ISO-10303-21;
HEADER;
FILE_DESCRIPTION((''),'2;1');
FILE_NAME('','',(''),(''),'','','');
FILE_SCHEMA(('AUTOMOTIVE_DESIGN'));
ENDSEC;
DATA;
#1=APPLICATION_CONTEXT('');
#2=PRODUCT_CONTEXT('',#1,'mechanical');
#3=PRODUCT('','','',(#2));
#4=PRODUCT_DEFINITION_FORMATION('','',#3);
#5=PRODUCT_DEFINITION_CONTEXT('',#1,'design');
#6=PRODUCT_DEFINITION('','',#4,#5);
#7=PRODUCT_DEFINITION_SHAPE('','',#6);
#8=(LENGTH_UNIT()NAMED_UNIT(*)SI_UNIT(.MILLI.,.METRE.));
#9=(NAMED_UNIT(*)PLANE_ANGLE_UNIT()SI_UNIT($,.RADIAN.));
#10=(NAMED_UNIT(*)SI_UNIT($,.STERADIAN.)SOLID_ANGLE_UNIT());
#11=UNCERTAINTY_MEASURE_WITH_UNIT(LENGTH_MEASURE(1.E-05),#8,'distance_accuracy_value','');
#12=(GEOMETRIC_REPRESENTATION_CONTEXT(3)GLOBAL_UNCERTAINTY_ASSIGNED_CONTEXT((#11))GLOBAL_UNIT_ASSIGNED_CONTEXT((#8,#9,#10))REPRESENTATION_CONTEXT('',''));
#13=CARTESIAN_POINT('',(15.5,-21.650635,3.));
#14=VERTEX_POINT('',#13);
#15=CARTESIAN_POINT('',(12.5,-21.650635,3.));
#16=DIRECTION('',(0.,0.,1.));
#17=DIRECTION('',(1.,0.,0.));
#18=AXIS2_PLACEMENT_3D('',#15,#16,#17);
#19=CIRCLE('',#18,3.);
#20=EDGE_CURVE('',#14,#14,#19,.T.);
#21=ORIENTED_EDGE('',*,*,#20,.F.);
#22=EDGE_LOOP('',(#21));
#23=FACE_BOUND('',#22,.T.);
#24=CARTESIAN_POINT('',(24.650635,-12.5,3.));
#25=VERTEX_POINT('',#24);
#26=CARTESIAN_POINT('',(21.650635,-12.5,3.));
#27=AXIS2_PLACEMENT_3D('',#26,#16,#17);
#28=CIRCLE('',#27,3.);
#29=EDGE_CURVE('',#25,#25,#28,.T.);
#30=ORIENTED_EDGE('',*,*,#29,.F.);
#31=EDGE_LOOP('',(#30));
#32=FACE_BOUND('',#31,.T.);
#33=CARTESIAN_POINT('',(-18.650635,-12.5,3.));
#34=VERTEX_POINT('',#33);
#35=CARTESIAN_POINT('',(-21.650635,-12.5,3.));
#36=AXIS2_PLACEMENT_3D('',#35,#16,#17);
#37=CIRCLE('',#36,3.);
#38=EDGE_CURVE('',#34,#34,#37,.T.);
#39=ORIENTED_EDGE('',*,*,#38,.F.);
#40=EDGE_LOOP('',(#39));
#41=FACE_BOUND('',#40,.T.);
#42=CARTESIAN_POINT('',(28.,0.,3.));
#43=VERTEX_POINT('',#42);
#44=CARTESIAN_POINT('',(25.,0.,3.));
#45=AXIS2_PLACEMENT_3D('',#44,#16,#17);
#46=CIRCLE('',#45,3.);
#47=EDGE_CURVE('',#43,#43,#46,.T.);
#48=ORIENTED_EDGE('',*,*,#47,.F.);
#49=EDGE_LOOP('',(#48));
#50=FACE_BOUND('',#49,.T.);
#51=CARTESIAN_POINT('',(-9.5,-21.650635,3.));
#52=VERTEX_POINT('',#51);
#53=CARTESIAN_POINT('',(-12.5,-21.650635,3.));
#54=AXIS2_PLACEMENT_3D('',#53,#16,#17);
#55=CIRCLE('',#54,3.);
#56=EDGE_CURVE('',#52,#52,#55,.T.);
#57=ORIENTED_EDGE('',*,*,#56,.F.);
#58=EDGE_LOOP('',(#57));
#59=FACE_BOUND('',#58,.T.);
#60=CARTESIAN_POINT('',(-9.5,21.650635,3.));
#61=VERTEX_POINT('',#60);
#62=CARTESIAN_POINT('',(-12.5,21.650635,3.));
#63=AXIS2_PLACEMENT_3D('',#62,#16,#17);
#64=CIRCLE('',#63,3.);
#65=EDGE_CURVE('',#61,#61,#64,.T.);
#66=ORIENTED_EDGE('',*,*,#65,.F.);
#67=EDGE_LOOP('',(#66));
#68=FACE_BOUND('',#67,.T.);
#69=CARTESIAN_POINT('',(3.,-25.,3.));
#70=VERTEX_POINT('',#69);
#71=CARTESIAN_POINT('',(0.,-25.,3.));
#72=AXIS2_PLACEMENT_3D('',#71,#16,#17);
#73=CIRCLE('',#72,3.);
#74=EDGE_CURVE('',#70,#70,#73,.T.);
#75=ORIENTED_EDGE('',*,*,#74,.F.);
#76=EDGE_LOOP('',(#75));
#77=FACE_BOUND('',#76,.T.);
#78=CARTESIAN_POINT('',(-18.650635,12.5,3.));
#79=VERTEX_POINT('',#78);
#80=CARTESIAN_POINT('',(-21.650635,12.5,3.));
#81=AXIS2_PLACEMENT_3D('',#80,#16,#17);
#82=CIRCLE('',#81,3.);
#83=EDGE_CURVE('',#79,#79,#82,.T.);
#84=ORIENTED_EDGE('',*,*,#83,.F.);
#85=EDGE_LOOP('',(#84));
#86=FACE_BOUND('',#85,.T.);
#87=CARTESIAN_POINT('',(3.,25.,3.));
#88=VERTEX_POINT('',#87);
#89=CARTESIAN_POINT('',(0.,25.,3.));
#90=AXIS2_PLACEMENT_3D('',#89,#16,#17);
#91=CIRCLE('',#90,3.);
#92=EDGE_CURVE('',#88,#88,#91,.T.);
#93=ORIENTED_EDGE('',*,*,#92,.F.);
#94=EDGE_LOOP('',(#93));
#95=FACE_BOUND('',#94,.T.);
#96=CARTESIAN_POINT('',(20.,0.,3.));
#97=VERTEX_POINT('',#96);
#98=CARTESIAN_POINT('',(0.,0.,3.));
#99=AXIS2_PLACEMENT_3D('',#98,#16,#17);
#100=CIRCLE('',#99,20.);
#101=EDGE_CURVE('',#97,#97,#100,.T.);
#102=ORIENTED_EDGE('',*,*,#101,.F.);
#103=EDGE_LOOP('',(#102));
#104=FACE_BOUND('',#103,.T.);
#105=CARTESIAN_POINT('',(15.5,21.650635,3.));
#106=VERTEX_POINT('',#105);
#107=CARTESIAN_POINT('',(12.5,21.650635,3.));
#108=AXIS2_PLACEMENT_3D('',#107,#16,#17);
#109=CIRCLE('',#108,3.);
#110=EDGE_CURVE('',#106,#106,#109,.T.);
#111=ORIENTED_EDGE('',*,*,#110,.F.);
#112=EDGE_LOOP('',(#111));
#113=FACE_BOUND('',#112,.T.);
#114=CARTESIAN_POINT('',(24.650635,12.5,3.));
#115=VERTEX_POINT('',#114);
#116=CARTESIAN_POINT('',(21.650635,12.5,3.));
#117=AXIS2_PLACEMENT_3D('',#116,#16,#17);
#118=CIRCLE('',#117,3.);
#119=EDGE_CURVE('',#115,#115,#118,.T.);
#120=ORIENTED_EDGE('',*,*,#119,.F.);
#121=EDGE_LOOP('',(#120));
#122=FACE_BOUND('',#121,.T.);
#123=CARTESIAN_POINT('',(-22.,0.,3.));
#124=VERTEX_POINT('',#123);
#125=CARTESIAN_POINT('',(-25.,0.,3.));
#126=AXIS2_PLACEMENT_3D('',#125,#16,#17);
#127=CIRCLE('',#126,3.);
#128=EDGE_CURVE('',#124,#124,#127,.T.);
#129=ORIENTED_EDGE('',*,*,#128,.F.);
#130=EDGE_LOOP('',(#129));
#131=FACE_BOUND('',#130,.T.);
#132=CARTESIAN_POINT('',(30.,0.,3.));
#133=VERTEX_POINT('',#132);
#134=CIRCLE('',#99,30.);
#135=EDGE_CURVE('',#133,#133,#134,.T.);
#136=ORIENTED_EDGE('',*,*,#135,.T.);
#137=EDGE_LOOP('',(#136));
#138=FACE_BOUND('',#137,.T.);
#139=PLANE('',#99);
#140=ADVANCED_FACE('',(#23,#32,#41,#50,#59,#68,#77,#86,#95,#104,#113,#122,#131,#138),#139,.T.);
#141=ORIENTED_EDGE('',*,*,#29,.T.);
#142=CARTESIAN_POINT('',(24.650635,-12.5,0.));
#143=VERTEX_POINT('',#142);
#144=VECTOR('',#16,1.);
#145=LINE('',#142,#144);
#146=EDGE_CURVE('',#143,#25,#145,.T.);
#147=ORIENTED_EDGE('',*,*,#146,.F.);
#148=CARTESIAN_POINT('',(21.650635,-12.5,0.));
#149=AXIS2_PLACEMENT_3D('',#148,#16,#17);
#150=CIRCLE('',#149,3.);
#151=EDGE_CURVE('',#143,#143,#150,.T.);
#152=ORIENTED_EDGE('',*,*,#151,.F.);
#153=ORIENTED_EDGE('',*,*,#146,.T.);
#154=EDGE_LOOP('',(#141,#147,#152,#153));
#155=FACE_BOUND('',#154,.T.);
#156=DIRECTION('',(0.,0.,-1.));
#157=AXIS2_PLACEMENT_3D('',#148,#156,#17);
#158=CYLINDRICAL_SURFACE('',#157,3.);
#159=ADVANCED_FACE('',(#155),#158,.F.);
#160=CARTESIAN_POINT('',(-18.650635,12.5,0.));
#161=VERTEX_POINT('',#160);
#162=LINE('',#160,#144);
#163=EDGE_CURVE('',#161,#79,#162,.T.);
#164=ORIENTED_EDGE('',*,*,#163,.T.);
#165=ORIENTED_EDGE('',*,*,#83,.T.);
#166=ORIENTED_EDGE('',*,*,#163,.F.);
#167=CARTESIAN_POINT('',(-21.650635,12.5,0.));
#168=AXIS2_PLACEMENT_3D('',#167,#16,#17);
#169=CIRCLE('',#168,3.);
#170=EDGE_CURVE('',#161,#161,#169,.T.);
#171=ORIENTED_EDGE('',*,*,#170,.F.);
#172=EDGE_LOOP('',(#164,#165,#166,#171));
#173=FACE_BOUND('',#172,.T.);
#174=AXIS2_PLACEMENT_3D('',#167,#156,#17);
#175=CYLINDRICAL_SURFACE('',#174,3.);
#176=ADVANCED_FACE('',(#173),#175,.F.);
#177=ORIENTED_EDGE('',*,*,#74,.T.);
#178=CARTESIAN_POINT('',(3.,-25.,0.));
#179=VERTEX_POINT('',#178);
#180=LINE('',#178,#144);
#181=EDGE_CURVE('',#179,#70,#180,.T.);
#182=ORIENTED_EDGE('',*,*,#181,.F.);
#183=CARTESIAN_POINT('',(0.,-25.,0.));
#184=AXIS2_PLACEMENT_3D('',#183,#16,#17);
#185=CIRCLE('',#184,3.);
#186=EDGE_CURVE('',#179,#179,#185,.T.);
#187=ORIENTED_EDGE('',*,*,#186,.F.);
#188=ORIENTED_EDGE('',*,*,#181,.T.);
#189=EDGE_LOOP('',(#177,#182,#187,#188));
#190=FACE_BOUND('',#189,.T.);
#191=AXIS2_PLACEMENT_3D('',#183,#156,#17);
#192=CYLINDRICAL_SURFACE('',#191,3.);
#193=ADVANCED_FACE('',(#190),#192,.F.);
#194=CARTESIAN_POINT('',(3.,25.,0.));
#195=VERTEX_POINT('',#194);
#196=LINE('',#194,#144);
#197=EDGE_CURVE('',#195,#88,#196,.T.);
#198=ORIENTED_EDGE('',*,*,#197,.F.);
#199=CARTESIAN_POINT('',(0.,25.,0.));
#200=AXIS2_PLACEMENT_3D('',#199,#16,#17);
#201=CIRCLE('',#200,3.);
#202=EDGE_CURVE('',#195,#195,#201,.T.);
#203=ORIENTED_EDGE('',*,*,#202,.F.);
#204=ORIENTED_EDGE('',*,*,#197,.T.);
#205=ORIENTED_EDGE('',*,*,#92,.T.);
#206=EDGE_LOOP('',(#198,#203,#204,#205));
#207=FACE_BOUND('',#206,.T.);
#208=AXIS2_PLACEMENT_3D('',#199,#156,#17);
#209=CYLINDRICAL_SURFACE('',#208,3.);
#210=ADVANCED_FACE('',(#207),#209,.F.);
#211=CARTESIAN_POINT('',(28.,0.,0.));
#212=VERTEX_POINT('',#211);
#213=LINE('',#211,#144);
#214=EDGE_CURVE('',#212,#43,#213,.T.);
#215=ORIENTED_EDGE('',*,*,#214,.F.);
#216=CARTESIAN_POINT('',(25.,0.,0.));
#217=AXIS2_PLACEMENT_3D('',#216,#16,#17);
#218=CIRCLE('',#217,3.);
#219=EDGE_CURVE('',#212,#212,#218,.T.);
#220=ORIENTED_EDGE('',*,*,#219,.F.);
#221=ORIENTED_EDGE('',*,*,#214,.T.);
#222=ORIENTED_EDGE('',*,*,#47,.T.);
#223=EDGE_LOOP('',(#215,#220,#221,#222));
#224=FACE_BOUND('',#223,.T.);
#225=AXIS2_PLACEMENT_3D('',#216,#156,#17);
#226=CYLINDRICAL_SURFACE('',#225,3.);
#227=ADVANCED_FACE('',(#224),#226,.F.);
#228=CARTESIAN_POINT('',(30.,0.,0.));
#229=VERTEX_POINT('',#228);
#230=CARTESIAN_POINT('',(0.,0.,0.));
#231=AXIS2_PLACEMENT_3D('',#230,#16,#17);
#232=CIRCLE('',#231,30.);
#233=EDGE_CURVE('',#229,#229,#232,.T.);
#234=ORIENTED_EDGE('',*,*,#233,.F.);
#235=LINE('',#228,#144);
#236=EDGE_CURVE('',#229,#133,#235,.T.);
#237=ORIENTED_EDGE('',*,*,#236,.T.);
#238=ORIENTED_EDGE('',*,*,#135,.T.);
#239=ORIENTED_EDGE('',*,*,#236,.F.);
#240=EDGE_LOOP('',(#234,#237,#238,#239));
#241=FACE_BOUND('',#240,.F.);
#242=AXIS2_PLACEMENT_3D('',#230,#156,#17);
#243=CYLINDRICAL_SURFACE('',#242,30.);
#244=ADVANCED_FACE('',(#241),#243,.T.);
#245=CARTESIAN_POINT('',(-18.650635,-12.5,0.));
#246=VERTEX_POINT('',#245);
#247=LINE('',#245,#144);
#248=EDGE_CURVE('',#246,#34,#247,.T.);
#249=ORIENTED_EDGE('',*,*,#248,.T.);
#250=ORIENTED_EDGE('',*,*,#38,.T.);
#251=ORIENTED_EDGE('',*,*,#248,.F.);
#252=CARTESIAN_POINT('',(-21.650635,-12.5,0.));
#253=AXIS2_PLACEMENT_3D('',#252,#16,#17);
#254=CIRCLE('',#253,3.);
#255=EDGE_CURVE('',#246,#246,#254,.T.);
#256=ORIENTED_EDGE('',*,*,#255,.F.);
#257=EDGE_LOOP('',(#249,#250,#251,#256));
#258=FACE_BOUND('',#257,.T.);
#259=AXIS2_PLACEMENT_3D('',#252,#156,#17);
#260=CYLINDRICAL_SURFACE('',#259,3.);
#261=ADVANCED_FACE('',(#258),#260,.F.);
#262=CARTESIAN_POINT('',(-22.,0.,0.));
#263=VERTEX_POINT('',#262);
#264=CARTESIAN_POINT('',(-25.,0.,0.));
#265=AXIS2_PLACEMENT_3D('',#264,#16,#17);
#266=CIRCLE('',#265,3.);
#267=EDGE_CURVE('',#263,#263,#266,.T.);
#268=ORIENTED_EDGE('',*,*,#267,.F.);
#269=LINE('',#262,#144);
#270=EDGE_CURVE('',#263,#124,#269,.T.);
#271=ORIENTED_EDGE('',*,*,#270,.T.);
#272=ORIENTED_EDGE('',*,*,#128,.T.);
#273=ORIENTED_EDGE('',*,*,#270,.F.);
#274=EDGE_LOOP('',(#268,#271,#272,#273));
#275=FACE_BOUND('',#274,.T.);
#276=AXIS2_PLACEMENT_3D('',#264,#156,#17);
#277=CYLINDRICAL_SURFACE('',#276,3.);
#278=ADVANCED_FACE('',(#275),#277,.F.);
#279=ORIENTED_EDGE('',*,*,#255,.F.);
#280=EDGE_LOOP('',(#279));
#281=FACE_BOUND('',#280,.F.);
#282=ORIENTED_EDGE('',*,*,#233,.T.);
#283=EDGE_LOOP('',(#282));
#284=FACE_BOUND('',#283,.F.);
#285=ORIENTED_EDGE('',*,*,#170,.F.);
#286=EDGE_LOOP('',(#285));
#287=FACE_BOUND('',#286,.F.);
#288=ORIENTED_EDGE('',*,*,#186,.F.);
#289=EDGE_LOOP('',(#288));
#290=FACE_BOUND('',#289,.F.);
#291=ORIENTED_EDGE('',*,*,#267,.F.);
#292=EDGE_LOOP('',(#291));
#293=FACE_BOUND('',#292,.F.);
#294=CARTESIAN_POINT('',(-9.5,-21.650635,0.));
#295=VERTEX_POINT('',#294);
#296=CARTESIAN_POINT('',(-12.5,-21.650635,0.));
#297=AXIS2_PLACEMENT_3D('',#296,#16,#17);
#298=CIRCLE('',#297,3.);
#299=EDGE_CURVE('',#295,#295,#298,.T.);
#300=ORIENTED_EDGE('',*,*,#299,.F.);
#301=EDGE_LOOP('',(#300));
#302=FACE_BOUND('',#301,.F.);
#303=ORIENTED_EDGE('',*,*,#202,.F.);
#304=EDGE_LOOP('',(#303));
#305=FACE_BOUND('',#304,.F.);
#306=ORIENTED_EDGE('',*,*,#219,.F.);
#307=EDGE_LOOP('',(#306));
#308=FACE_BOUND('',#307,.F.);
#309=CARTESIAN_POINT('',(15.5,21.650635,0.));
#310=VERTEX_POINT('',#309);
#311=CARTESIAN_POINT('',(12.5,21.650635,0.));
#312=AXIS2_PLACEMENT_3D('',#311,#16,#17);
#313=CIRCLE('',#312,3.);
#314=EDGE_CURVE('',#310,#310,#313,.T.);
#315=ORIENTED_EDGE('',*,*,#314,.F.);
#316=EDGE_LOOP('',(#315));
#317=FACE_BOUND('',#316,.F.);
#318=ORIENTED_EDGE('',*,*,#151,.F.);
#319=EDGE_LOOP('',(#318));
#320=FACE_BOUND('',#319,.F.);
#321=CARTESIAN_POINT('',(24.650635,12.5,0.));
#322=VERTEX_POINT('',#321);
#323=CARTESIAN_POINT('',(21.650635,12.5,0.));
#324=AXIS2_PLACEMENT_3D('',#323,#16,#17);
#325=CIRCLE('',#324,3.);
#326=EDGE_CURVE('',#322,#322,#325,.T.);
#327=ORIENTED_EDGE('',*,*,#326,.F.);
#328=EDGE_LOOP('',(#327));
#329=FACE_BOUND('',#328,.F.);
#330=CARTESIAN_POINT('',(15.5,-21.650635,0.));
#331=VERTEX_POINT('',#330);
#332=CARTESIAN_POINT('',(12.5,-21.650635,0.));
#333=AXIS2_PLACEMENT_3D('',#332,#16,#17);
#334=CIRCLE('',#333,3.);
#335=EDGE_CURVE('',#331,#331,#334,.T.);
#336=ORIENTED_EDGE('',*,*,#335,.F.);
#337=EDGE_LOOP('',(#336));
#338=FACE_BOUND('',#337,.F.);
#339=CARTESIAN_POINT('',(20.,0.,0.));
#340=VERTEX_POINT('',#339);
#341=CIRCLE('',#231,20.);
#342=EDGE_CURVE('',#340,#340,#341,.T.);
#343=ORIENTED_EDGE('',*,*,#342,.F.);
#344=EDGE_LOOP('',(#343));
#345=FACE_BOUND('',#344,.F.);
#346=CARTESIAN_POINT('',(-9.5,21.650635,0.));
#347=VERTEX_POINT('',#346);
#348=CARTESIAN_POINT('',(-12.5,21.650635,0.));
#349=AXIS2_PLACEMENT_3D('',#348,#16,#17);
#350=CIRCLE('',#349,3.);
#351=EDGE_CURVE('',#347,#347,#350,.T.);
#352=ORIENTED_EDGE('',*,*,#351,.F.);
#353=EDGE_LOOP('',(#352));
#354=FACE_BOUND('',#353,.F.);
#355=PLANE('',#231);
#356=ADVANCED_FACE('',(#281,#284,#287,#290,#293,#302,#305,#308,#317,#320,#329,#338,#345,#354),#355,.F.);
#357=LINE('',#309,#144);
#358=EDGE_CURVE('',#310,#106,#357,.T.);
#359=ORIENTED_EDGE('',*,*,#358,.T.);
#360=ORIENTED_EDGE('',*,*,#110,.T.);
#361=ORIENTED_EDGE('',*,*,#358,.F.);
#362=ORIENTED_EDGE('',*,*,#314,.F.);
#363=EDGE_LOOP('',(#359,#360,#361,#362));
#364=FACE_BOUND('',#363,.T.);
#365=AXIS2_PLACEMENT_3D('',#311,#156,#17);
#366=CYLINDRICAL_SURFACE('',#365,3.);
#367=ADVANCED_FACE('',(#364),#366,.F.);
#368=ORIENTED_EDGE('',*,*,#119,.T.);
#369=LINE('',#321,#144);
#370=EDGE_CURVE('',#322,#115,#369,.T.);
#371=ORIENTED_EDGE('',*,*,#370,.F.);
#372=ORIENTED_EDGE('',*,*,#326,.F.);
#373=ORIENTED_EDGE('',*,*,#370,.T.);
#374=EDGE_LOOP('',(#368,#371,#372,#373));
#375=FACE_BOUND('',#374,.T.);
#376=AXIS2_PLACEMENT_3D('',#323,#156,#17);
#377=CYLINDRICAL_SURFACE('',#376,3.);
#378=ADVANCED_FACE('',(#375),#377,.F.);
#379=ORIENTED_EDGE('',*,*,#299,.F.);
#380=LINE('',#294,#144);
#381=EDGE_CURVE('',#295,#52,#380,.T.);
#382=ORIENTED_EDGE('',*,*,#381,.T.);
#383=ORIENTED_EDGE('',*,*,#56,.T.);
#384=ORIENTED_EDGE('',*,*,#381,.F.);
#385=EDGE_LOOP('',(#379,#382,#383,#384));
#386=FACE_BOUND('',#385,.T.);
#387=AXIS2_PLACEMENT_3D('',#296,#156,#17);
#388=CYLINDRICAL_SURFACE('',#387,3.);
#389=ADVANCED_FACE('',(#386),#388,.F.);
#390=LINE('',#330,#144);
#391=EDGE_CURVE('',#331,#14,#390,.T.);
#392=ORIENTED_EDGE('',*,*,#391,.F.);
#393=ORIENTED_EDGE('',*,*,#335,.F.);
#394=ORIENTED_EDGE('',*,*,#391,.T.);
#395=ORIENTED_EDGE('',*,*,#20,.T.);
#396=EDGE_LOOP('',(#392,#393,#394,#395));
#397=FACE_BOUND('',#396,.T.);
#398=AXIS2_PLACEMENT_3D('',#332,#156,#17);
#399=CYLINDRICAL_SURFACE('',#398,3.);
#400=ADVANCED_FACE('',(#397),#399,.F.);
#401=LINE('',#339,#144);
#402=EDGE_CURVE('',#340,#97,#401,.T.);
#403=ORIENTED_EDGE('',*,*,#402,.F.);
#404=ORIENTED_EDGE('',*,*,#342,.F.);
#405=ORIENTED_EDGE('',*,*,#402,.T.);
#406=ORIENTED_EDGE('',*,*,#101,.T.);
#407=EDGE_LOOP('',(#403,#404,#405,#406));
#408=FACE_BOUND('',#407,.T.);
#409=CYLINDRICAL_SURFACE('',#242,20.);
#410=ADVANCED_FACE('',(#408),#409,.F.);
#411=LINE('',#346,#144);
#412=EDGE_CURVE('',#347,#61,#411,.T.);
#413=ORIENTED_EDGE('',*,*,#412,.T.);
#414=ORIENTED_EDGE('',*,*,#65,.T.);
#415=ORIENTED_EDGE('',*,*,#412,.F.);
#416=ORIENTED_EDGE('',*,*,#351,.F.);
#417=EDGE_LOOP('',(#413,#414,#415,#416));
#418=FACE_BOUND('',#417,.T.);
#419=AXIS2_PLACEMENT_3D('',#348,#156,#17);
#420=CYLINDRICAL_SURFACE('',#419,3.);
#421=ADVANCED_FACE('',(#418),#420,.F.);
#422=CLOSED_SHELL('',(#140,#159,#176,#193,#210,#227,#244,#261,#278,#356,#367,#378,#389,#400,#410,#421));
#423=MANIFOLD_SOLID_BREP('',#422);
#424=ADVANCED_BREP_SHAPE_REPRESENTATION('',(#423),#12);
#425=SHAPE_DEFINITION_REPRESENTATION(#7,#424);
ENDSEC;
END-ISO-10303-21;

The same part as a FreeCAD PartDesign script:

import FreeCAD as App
import Part
import Sketcher

doc = App.newDocument("Part")
body = doc.addObject("PartDesign::Body", "Body")

# Sketch on XY plane
sketch1 = body.newObject("Sketcher::SketchObject", "Sketch")
sketch1.AttachmentSupport = (doc.getObject("XY_Plane"), [""])
sketch1.MapMode = "FlatFace"
sketch1.addGeometry([
    Part.Circle(App.Vector(0, 0, 0), App.Vector(0, 0, 1), 30),  # 0
    Part.Circle(App.Vector(-12.5, -21.650635, 0), App.Vector(0, 0, 1), 3),  # 1
    Part.Circle(App.Vector(-21.650635, -12.5, 0), App.Vector(0, 0, 1), 3),  # 2
    Part.Circle(App.Vector(0, -25, 0), App.Vector(0, 0, 1), 3),  # 3
    Part.Circle(App.Vector(12.5, -21.650635, 0), App.Vector(0, 0, 1), 3),  # 4
    Part.Circle(App.Vector(21.650635, -12.5, 0), App.Vector(0, 0, 1), 3),  # 5
    Part.Circle(App.Vector(-25, 0, 0), App.Vector(0, 0, 1), 3),  # 6
    Part.Circle(App.Vector(-21.650635, 12.5, 0), App.Vector(0, 0, 1), 3),  # 7
    Part.Circle(App.Vector(-12.5, 21.650635, 0), App.Vector(0, 0, 1), 3),  # 8
    Part.Circle(App.Vector(0, 0, 0), App.Vector(0, 0, 1), 20),  # 9
    Part.Circle(App.Vector(25, 0, 0), App.Vector(0, 0, 1), 3),  # 10
    Part.Circle(App.Vector(21.650635, 12.5, 0), App.Vector(0, 0, 1), 3),  # 11
    Part.Circle(App.Vector(0, 25, 0), App.Vector(0, 0, 1), 3),  # 12
    Part.Circle(App.Vector(12.5, 21.650635, 0), App.Vector(0, 0, 1), 3),  # 13
], False)
sketch1.addConstraint([
    Sketcher.Constraint("Coincident", 0, 3, -1, 1),
    Sketcher.Constraint("Coincident", 9, 3, -1, 1),
    Sketcher.Constraint("Equal", 1, 2),
    Sketcher.Constraint("Equal", 2, 3),
    Sketcher.Constraint("Equal", 3, 4),
    Sketcher.Constraint("Equal", 4, 5),
    Sketcher.Constraint("Equal", 5, 6),
    Sketcher.Constraint("Equal", 6, 7),
    Sketcher.Constraint("Equal", 7, 8),
    Sketcher.Constraint("Equal", 8, 10),
    Sketcher.Constraint("Equal", 10, 11),
    Sketcher.Constraint("Equal", 11, 12),
    Sketcher.Constraint("Equal", 12, 13),
    Sketcher.Constraint("Symmetric", 5, 3, 7, 3, -1, 1),
    Sketcher.Constraint("Symmetric", 4, 3, 8, 3, -1, 1),
    Sketcher.Constraint("Symmetric", 6, 3, 10, 3, -1, 1),
    Sketcher.Constraint("Symmetric", 2, 3, 11, 3, -1, 1),
    Sketcher.Constraint("Symmetric", 3, 3, 12, 3, -1, 1),
    Sketcher.Constraint("Symmetric", 1, 3, 13, 3, -1, 1),
    Sketcher.Constraint("Symmetric", 1, 3, 4, 3, -2),
    Sketcher.Constraint("Symmetric", 2, 3, 5, 3, -2),
    Sketcher.Constraint("PointOnObject", 3, 3, -2),
    Sketcher.Constraint("PointOnObject", 6, 3, -1),
    Sketcher.Constraint("Diameter", 0, 60.0),
    Sketcher.Constraint("Diameter", 1, 6.0),
    Sketcher.Constraint("Diameter", 9, 40.0),
    Sketcher.Constraint("DistanceY", 3, 3, -1, 1, 25.0),
    Sketcher.Constraint("DistanceX", 6, 3, -1, 1, 25.0),
    Sketcher.Constraint("DistanceX", 1, 3, 4, 3, 25.0),
    Sketcher.Constraint("DistanceY", 2, 3, 7, 3, 25.0),
    Sketcher.Constraint("DistanceX", 2, 3, 5, 3, 43.30127),
    Sketcher.Constraint("DistanceY", 1, 3, 8, 3, 43.30127),
])
pad1 = body.newObject("PartDesign::Pad", "Pad")
pad1.Profile = sketch1
pad1.Length = 3

doc.recompute()
